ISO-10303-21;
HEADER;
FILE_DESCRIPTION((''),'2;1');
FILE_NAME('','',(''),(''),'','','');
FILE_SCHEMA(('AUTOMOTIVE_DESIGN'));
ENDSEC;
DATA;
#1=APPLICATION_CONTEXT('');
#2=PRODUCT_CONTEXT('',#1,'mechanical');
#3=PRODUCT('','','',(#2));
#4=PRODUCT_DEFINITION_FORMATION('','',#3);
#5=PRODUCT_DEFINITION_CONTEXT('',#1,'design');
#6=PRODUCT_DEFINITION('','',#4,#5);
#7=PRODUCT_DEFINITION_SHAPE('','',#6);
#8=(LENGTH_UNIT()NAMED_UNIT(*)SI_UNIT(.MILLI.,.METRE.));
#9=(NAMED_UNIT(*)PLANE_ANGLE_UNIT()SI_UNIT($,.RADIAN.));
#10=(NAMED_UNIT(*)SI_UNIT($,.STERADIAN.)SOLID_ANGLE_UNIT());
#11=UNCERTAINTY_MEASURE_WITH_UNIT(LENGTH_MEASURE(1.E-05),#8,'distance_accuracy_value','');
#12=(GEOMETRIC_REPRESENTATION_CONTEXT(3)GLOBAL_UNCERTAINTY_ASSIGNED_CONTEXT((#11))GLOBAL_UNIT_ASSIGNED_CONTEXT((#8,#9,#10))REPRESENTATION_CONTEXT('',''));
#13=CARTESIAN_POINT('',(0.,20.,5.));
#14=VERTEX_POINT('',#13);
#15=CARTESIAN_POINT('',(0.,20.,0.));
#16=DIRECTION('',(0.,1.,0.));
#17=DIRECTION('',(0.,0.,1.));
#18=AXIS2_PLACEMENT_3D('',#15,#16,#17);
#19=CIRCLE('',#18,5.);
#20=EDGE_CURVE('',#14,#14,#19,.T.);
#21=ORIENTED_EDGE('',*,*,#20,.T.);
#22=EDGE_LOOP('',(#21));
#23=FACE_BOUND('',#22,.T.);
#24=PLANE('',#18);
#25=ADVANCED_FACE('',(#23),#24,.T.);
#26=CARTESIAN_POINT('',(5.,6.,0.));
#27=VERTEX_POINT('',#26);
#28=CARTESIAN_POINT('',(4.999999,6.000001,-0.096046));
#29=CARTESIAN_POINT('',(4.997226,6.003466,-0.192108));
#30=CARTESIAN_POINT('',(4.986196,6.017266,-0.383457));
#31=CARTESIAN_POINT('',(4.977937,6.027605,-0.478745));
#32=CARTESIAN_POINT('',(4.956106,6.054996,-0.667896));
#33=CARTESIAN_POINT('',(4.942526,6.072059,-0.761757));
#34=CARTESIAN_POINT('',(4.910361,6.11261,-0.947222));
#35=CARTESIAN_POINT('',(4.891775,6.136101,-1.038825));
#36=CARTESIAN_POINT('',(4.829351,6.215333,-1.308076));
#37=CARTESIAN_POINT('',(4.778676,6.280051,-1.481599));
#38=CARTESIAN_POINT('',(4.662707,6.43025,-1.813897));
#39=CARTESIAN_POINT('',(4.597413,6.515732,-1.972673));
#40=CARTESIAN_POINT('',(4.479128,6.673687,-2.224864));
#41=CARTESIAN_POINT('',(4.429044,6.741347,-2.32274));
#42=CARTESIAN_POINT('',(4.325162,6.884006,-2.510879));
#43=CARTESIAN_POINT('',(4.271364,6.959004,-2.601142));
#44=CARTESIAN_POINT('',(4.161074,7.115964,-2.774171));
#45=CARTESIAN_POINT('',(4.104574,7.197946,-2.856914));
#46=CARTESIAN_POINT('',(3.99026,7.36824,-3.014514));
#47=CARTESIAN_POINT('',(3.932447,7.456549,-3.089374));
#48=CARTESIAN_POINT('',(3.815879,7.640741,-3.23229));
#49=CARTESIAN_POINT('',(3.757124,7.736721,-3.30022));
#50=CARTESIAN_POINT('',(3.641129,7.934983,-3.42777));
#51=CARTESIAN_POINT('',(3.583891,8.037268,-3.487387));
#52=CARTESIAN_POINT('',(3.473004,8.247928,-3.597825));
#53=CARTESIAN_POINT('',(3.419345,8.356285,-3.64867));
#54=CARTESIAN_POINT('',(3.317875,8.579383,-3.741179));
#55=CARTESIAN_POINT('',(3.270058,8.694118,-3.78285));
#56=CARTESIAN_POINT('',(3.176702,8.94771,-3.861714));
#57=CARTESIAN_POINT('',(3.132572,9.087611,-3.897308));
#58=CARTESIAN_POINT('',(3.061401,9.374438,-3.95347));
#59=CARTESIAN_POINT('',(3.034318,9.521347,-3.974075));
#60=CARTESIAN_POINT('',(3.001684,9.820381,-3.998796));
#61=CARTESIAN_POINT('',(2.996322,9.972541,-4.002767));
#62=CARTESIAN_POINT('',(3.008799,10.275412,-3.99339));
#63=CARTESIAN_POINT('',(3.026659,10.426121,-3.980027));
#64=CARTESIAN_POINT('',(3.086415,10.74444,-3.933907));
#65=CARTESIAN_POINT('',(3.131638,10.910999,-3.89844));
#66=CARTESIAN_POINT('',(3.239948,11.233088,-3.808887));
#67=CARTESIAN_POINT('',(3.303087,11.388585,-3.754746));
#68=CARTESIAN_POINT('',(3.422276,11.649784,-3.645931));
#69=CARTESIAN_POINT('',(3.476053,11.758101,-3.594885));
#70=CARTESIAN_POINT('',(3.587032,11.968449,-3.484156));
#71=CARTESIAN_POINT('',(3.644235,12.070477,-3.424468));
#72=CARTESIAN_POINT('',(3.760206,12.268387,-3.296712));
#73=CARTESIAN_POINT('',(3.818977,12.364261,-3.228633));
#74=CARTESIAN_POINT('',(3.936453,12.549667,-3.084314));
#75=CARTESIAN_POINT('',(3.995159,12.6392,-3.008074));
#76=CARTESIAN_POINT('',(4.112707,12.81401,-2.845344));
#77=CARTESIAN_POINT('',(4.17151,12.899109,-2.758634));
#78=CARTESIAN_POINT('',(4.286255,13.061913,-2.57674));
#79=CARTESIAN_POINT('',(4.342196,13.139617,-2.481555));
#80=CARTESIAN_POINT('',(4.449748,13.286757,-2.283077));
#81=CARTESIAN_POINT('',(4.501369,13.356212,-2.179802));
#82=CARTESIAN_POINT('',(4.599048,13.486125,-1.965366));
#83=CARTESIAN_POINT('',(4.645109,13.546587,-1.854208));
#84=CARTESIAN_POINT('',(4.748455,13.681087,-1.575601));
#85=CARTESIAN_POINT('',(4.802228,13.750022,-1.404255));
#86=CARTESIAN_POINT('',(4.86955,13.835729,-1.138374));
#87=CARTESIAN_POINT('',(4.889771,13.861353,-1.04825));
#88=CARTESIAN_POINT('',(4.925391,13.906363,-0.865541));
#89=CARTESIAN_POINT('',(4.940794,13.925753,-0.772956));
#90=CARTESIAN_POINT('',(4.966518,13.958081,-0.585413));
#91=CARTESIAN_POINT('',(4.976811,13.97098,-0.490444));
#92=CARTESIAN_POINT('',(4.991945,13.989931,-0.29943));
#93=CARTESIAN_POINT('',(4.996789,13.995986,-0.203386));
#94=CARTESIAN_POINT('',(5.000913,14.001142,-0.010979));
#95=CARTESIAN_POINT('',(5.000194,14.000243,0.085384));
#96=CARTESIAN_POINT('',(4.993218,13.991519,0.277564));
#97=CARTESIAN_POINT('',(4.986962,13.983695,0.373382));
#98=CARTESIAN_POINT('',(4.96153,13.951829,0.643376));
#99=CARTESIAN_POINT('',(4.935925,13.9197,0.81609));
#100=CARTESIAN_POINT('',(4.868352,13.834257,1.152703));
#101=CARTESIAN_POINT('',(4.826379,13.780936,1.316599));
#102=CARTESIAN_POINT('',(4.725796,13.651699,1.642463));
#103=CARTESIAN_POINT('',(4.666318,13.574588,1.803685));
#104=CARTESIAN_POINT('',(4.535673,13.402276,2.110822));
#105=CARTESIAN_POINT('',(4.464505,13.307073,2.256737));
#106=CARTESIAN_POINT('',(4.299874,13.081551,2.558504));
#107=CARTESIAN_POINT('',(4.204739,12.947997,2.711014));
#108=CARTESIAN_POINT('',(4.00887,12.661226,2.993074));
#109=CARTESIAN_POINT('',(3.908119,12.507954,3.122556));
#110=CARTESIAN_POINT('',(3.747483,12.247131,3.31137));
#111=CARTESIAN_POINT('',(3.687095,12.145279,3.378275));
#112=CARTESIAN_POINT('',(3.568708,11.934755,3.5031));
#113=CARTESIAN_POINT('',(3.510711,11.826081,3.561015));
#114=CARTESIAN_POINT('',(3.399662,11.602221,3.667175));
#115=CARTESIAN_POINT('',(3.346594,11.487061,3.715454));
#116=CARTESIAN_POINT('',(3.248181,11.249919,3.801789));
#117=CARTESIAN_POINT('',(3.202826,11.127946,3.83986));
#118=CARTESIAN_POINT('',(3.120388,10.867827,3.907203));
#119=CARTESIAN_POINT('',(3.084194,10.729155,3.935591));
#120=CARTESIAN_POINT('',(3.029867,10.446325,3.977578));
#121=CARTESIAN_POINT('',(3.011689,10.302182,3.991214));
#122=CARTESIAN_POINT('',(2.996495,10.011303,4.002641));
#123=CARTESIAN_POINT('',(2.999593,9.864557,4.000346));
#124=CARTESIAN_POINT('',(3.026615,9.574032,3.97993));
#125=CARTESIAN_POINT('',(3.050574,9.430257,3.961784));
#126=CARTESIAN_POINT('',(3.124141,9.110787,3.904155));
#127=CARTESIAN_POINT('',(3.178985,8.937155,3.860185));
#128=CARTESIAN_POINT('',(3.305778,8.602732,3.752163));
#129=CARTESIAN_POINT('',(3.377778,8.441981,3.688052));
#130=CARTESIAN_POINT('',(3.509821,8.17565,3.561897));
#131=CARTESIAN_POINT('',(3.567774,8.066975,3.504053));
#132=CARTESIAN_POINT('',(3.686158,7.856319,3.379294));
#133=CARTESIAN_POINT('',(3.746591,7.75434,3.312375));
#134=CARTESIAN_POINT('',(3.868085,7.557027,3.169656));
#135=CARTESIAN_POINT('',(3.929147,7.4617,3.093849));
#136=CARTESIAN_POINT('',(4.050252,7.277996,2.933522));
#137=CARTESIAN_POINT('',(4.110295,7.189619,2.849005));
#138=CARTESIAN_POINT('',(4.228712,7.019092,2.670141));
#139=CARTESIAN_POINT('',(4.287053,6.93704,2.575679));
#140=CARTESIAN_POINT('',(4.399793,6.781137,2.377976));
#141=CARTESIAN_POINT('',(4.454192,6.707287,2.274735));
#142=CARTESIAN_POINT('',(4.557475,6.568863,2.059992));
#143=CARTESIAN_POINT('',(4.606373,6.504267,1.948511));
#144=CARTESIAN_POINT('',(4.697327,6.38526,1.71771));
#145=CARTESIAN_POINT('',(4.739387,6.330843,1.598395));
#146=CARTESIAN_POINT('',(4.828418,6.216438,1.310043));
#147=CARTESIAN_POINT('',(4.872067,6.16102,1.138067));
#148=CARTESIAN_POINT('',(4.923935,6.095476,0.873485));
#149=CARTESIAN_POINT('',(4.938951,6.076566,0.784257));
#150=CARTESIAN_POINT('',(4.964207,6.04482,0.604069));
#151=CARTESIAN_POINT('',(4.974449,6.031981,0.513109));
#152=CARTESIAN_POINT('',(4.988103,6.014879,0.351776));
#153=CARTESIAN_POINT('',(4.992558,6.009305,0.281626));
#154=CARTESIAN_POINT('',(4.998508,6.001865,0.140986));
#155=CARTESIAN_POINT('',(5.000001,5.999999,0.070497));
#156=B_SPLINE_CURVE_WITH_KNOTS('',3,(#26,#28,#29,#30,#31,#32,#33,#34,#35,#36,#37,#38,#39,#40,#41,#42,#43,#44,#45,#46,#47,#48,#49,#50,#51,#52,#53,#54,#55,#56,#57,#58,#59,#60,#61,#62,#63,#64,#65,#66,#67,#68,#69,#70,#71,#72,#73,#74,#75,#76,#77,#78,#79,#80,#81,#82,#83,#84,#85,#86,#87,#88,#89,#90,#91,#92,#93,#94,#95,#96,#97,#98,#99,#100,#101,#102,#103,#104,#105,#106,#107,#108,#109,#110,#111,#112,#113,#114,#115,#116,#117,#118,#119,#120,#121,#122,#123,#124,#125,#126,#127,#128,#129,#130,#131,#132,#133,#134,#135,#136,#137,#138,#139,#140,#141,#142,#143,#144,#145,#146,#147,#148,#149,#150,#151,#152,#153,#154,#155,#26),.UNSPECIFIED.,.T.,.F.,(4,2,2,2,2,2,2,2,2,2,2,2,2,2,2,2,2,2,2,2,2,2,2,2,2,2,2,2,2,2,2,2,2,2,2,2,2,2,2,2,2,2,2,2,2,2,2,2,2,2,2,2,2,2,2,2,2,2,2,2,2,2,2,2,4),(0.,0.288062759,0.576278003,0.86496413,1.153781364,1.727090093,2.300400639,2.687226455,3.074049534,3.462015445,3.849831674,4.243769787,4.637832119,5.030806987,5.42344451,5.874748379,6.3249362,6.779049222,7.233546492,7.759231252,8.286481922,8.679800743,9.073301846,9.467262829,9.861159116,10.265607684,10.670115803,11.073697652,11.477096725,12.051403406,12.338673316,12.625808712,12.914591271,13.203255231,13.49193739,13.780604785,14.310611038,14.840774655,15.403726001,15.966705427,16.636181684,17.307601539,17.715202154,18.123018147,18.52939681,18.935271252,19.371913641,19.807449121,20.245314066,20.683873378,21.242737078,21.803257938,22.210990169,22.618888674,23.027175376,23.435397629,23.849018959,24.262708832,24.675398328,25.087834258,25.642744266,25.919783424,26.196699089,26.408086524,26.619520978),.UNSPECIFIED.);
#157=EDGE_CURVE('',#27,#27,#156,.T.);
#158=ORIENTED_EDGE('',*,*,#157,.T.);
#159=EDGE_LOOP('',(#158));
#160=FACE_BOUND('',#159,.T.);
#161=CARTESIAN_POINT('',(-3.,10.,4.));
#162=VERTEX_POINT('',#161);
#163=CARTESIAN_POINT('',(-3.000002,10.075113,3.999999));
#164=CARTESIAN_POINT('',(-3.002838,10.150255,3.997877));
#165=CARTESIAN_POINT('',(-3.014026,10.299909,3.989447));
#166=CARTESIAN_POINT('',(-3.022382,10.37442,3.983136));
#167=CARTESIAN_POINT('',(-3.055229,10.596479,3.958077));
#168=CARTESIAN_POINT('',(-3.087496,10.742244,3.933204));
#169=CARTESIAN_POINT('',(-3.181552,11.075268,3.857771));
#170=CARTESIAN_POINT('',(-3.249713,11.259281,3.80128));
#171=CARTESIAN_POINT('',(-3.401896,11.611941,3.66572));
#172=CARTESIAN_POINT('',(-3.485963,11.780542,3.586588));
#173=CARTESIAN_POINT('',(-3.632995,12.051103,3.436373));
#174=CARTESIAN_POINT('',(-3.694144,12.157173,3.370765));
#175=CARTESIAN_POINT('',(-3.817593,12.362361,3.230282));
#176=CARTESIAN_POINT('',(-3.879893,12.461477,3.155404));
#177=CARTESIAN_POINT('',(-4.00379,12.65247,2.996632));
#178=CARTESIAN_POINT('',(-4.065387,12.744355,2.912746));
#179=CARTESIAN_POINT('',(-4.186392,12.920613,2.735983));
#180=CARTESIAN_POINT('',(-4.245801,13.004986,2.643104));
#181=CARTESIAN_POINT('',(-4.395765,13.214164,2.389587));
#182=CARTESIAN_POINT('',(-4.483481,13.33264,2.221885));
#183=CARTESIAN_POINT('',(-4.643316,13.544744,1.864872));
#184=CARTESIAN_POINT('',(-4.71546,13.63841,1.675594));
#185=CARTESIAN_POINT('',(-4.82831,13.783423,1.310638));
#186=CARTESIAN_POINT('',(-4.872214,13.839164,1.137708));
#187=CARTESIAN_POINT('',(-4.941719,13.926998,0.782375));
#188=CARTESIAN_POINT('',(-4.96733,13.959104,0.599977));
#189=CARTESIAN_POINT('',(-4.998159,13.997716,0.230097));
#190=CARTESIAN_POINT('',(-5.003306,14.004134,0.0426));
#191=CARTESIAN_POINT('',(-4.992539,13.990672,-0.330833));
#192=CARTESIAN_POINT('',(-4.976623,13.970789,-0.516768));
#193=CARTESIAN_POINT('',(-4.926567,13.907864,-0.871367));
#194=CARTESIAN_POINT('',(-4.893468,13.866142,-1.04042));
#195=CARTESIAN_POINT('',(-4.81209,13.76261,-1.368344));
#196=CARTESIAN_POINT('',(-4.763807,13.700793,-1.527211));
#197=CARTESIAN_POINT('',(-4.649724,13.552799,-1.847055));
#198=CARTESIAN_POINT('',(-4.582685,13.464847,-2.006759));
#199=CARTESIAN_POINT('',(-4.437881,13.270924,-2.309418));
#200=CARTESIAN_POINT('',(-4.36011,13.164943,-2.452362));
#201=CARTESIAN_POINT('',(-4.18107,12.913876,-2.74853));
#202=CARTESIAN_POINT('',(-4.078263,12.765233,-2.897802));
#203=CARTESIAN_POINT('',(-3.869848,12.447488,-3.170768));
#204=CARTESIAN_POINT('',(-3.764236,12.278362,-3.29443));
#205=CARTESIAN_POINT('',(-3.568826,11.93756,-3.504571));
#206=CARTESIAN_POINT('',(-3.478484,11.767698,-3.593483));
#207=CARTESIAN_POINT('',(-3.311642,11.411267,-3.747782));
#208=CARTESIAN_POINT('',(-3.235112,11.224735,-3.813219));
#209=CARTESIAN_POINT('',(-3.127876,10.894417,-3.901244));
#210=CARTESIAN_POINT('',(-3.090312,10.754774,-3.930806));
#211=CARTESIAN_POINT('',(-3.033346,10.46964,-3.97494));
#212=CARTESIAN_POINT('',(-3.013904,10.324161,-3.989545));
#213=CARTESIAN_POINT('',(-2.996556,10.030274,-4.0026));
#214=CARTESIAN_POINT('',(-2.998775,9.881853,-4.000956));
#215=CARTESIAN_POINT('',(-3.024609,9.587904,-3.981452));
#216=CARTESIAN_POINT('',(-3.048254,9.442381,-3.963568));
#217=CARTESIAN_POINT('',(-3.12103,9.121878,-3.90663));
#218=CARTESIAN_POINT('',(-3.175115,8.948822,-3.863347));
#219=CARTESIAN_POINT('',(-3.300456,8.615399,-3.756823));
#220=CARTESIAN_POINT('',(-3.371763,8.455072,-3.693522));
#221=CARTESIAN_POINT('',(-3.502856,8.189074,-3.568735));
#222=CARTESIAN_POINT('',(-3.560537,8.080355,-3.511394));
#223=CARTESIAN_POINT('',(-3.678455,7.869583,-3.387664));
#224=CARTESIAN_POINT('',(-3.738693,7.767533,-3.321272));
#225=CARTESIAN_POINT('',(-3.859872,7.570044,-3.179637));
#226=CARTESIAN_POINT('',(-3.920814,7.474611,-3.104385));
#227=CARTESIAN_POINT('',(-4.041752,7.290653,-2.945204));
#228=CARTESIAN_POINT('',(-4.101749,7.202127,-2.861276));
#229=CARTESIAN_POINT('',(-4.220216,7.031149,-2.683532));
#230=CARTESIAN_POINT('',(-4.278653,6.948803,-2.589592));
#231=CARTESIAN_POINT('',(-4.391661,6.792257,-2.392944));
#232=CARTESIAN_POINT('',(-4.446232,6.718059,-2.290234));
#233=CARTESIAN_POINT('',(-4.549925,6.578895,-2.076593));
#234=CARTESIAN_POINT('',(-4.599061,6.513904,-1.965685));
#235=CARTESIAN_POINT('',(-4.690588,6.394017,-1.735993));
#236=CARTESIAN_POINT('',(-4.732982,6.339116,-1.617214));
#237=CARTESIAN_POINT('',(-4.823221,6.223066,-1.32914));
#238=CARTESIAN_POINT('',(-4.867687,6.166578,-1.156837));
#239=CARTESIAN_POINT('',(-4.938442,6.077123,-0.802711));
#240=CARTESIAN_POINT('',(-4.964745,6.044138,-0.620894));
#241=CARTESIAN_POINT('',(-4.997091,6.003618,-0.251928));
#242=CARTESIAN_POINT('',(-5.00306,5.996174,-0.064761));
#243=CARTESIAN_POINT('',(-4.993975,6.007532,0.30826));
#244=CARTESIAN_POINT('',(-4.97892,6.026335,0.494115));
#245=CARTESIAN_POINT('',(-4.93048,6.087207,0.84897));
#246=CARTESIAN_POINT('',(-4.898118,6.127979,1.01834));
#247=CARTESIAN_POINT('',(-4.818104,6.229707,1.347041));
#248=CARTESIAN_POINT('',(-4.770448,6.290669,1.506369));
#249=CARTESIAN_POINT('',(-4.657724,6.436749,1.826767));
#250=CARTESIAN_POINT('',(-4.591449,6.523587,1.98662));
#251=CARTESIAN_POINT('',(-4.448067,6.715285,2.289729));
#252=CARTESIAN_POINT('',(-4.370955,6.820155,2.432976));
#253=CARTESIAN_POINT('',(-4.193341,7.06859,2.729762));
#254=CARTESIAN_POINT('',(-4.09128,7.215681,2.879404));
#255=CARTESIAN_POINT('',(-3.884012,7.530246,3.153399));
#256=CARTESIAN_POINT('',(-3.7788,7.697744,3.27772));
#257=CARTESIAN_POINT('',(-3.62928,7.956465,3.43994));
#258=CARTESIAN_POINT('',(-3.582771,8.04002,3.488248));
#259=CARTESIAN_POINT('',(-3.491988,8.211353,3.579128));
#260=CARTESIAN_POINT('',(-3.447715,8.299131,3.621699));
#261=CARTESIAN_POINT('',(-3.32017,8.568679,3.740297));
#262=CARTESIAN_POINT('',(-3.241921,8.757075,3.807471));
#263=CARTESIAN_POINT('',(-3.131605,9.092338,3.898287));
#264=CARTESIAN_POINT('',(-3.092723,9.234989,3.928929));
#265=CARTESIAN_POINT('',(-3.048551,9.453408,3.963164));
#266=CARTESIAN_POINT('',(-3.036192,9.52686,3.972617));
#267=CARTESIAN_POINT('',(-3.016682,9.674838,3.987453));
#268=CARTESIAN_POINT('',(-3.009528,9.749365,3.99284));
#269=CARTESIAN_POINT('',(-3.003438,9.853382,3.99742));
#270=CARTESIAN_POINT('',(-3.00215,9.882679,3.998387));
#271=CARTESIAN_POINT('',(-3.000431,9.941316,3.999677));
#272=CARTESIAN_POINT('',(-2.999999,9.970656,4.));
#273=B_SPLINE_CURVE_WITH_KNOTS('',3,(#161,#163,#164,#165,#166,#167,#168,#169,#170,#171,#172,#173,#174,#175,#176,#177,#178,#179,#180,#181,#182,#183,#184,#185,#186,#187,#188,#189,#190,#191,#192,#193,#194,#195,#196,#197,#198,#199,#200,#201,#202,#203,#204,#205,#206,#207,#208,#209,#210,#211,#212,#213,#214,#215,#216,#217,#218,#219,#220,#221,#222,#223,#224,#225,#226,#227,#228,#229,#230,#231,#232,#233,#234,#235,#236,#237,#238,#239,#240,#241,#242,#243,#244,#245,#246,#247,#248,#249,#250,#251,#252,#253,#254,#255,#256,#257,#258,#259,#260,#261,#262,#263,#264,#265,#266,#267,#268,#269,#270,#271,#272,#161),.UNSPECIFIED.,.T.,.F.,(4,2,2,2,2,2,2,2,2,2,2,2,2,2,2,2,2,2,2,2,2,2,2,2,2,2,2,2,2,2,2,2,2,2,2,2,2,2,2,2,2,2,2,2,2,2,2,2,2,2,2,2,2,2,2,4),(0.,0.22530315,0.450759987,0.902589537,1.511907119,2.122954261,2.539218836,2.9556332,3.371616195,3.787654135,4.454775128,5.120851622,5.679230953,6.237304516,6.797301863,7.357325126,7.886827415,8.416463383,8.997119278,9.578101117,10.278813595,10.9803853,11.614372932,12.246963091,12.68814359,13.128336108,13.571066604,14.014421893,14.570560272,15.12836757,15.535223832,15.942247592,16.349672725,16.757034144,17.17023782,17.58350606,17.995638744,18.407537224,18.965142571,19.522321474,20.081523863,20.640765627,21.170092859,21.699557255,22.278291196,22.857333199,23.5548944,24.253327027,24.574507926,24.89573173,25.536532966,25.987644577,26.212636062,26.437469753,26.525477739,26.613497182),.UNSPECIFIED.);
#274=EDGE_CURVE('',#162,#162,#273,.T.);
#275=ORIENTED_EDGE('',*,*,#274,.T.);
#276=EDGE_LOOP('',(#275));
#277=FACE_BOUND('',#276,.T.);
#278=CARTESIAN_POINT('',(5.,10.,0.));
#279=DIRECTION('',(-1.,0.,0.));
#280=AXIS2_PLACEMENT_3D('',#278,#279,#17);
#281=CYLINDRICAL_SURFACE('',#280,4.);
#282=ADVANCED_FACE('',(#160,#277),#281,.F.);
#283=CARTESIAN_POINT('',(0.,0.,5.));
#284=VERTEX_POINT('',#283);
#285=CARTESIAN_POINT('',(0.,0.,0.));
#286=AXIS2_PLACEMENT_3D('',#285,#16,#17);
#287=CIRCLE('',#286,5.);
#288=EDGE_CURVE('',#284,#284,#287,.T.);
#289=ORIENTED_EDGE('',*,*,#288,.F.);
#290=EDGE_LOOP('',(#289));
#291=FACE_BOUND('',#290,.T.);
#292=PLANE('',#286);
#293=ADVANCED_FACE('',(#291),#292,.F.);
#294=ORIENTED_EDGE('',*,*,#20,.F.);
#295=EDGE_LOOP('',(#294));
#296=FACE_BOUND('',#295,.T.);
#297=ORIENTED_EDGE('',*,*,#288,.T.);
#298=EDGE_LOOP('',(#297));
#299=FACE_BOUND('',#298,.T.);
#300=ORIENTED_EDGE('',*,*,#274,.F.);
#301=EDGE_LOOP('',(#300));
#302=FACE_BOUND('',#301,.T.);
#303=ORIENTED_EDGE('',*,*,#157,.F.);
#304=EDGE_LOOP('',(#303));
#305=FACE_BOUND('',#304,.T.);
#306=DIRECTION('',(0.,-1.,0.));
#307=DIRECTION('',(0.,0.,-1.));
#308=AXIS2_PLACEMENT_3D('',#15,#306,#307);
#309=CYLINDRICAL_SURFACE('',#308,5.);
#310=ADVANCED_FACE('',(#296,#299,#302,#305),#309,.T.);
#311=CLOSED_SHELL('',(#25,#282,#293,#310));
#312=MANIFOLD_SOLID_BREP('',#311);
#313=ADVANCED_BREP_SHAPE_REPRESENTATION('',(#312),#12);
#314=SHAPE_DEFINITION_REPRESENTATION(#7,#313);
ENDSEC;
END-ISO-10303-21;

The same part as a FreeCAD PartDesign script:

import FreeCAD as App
import Part
import Sketcher
Q = App.Units.Quantity

doc = App.newDocument("Part")
body = doc.addObject("PartDesign::Body", "Body")

sketch1 = body.newObject("Sketcher::SketchObject", "Sketch")
sketch1.AttachmentSupport = (doc.getObject("XZ_Plane"), [""])
sketch1.MapMode = "FlatFace"
sketch1.addGeometry(Part.Circle(App.Vector(0, 0, 0), App.Vector(0, 0, 1), 5), False)
sketch1.addConstraint(Sketcher.Constraint("Coincident", 0, 3, -1, 1))
sketch1.addConstraint(Sketcher.Constraint("Diameter", 0, Q("10 mm")))
pad1 = body.newObject("PartDesign::Pad", "Pad")
pad1.Profile = sketch1
pad1.Length = 20
pad1.Reversed = True

sketch2 = body.newObject("Sketcher::SketchObject", "Sketch001")
sketch2.AttachmentSupport = (doc.getObject("YZ_Plane"), [""])
sketch2.MapMode = "FlatFace"
sketch2.addGeometry(Part.Circle(App.Vector(10, 0, 0), App.Vector(0, 0, 1), 4), False)
sketch2.addConstraint(Sketcher.Constraint("PointOnObject", 0, 3, -1))
sketch2.addConstraint(Sketcher.Constraint("Diameter", 0, Q("8 mm")))
sketch2.addConstraint(Sketcher.Constraint("DistanceX", -1, 1, 0, 3, Q("10 mm")))
pocket1 = body.newObject("PartDesign::Pocket", "Pocket")
pocket1.Profile = sketch2
pocket1.Type = "ThroughAll"
pocket1.Midplane = True

doc.recompute()
